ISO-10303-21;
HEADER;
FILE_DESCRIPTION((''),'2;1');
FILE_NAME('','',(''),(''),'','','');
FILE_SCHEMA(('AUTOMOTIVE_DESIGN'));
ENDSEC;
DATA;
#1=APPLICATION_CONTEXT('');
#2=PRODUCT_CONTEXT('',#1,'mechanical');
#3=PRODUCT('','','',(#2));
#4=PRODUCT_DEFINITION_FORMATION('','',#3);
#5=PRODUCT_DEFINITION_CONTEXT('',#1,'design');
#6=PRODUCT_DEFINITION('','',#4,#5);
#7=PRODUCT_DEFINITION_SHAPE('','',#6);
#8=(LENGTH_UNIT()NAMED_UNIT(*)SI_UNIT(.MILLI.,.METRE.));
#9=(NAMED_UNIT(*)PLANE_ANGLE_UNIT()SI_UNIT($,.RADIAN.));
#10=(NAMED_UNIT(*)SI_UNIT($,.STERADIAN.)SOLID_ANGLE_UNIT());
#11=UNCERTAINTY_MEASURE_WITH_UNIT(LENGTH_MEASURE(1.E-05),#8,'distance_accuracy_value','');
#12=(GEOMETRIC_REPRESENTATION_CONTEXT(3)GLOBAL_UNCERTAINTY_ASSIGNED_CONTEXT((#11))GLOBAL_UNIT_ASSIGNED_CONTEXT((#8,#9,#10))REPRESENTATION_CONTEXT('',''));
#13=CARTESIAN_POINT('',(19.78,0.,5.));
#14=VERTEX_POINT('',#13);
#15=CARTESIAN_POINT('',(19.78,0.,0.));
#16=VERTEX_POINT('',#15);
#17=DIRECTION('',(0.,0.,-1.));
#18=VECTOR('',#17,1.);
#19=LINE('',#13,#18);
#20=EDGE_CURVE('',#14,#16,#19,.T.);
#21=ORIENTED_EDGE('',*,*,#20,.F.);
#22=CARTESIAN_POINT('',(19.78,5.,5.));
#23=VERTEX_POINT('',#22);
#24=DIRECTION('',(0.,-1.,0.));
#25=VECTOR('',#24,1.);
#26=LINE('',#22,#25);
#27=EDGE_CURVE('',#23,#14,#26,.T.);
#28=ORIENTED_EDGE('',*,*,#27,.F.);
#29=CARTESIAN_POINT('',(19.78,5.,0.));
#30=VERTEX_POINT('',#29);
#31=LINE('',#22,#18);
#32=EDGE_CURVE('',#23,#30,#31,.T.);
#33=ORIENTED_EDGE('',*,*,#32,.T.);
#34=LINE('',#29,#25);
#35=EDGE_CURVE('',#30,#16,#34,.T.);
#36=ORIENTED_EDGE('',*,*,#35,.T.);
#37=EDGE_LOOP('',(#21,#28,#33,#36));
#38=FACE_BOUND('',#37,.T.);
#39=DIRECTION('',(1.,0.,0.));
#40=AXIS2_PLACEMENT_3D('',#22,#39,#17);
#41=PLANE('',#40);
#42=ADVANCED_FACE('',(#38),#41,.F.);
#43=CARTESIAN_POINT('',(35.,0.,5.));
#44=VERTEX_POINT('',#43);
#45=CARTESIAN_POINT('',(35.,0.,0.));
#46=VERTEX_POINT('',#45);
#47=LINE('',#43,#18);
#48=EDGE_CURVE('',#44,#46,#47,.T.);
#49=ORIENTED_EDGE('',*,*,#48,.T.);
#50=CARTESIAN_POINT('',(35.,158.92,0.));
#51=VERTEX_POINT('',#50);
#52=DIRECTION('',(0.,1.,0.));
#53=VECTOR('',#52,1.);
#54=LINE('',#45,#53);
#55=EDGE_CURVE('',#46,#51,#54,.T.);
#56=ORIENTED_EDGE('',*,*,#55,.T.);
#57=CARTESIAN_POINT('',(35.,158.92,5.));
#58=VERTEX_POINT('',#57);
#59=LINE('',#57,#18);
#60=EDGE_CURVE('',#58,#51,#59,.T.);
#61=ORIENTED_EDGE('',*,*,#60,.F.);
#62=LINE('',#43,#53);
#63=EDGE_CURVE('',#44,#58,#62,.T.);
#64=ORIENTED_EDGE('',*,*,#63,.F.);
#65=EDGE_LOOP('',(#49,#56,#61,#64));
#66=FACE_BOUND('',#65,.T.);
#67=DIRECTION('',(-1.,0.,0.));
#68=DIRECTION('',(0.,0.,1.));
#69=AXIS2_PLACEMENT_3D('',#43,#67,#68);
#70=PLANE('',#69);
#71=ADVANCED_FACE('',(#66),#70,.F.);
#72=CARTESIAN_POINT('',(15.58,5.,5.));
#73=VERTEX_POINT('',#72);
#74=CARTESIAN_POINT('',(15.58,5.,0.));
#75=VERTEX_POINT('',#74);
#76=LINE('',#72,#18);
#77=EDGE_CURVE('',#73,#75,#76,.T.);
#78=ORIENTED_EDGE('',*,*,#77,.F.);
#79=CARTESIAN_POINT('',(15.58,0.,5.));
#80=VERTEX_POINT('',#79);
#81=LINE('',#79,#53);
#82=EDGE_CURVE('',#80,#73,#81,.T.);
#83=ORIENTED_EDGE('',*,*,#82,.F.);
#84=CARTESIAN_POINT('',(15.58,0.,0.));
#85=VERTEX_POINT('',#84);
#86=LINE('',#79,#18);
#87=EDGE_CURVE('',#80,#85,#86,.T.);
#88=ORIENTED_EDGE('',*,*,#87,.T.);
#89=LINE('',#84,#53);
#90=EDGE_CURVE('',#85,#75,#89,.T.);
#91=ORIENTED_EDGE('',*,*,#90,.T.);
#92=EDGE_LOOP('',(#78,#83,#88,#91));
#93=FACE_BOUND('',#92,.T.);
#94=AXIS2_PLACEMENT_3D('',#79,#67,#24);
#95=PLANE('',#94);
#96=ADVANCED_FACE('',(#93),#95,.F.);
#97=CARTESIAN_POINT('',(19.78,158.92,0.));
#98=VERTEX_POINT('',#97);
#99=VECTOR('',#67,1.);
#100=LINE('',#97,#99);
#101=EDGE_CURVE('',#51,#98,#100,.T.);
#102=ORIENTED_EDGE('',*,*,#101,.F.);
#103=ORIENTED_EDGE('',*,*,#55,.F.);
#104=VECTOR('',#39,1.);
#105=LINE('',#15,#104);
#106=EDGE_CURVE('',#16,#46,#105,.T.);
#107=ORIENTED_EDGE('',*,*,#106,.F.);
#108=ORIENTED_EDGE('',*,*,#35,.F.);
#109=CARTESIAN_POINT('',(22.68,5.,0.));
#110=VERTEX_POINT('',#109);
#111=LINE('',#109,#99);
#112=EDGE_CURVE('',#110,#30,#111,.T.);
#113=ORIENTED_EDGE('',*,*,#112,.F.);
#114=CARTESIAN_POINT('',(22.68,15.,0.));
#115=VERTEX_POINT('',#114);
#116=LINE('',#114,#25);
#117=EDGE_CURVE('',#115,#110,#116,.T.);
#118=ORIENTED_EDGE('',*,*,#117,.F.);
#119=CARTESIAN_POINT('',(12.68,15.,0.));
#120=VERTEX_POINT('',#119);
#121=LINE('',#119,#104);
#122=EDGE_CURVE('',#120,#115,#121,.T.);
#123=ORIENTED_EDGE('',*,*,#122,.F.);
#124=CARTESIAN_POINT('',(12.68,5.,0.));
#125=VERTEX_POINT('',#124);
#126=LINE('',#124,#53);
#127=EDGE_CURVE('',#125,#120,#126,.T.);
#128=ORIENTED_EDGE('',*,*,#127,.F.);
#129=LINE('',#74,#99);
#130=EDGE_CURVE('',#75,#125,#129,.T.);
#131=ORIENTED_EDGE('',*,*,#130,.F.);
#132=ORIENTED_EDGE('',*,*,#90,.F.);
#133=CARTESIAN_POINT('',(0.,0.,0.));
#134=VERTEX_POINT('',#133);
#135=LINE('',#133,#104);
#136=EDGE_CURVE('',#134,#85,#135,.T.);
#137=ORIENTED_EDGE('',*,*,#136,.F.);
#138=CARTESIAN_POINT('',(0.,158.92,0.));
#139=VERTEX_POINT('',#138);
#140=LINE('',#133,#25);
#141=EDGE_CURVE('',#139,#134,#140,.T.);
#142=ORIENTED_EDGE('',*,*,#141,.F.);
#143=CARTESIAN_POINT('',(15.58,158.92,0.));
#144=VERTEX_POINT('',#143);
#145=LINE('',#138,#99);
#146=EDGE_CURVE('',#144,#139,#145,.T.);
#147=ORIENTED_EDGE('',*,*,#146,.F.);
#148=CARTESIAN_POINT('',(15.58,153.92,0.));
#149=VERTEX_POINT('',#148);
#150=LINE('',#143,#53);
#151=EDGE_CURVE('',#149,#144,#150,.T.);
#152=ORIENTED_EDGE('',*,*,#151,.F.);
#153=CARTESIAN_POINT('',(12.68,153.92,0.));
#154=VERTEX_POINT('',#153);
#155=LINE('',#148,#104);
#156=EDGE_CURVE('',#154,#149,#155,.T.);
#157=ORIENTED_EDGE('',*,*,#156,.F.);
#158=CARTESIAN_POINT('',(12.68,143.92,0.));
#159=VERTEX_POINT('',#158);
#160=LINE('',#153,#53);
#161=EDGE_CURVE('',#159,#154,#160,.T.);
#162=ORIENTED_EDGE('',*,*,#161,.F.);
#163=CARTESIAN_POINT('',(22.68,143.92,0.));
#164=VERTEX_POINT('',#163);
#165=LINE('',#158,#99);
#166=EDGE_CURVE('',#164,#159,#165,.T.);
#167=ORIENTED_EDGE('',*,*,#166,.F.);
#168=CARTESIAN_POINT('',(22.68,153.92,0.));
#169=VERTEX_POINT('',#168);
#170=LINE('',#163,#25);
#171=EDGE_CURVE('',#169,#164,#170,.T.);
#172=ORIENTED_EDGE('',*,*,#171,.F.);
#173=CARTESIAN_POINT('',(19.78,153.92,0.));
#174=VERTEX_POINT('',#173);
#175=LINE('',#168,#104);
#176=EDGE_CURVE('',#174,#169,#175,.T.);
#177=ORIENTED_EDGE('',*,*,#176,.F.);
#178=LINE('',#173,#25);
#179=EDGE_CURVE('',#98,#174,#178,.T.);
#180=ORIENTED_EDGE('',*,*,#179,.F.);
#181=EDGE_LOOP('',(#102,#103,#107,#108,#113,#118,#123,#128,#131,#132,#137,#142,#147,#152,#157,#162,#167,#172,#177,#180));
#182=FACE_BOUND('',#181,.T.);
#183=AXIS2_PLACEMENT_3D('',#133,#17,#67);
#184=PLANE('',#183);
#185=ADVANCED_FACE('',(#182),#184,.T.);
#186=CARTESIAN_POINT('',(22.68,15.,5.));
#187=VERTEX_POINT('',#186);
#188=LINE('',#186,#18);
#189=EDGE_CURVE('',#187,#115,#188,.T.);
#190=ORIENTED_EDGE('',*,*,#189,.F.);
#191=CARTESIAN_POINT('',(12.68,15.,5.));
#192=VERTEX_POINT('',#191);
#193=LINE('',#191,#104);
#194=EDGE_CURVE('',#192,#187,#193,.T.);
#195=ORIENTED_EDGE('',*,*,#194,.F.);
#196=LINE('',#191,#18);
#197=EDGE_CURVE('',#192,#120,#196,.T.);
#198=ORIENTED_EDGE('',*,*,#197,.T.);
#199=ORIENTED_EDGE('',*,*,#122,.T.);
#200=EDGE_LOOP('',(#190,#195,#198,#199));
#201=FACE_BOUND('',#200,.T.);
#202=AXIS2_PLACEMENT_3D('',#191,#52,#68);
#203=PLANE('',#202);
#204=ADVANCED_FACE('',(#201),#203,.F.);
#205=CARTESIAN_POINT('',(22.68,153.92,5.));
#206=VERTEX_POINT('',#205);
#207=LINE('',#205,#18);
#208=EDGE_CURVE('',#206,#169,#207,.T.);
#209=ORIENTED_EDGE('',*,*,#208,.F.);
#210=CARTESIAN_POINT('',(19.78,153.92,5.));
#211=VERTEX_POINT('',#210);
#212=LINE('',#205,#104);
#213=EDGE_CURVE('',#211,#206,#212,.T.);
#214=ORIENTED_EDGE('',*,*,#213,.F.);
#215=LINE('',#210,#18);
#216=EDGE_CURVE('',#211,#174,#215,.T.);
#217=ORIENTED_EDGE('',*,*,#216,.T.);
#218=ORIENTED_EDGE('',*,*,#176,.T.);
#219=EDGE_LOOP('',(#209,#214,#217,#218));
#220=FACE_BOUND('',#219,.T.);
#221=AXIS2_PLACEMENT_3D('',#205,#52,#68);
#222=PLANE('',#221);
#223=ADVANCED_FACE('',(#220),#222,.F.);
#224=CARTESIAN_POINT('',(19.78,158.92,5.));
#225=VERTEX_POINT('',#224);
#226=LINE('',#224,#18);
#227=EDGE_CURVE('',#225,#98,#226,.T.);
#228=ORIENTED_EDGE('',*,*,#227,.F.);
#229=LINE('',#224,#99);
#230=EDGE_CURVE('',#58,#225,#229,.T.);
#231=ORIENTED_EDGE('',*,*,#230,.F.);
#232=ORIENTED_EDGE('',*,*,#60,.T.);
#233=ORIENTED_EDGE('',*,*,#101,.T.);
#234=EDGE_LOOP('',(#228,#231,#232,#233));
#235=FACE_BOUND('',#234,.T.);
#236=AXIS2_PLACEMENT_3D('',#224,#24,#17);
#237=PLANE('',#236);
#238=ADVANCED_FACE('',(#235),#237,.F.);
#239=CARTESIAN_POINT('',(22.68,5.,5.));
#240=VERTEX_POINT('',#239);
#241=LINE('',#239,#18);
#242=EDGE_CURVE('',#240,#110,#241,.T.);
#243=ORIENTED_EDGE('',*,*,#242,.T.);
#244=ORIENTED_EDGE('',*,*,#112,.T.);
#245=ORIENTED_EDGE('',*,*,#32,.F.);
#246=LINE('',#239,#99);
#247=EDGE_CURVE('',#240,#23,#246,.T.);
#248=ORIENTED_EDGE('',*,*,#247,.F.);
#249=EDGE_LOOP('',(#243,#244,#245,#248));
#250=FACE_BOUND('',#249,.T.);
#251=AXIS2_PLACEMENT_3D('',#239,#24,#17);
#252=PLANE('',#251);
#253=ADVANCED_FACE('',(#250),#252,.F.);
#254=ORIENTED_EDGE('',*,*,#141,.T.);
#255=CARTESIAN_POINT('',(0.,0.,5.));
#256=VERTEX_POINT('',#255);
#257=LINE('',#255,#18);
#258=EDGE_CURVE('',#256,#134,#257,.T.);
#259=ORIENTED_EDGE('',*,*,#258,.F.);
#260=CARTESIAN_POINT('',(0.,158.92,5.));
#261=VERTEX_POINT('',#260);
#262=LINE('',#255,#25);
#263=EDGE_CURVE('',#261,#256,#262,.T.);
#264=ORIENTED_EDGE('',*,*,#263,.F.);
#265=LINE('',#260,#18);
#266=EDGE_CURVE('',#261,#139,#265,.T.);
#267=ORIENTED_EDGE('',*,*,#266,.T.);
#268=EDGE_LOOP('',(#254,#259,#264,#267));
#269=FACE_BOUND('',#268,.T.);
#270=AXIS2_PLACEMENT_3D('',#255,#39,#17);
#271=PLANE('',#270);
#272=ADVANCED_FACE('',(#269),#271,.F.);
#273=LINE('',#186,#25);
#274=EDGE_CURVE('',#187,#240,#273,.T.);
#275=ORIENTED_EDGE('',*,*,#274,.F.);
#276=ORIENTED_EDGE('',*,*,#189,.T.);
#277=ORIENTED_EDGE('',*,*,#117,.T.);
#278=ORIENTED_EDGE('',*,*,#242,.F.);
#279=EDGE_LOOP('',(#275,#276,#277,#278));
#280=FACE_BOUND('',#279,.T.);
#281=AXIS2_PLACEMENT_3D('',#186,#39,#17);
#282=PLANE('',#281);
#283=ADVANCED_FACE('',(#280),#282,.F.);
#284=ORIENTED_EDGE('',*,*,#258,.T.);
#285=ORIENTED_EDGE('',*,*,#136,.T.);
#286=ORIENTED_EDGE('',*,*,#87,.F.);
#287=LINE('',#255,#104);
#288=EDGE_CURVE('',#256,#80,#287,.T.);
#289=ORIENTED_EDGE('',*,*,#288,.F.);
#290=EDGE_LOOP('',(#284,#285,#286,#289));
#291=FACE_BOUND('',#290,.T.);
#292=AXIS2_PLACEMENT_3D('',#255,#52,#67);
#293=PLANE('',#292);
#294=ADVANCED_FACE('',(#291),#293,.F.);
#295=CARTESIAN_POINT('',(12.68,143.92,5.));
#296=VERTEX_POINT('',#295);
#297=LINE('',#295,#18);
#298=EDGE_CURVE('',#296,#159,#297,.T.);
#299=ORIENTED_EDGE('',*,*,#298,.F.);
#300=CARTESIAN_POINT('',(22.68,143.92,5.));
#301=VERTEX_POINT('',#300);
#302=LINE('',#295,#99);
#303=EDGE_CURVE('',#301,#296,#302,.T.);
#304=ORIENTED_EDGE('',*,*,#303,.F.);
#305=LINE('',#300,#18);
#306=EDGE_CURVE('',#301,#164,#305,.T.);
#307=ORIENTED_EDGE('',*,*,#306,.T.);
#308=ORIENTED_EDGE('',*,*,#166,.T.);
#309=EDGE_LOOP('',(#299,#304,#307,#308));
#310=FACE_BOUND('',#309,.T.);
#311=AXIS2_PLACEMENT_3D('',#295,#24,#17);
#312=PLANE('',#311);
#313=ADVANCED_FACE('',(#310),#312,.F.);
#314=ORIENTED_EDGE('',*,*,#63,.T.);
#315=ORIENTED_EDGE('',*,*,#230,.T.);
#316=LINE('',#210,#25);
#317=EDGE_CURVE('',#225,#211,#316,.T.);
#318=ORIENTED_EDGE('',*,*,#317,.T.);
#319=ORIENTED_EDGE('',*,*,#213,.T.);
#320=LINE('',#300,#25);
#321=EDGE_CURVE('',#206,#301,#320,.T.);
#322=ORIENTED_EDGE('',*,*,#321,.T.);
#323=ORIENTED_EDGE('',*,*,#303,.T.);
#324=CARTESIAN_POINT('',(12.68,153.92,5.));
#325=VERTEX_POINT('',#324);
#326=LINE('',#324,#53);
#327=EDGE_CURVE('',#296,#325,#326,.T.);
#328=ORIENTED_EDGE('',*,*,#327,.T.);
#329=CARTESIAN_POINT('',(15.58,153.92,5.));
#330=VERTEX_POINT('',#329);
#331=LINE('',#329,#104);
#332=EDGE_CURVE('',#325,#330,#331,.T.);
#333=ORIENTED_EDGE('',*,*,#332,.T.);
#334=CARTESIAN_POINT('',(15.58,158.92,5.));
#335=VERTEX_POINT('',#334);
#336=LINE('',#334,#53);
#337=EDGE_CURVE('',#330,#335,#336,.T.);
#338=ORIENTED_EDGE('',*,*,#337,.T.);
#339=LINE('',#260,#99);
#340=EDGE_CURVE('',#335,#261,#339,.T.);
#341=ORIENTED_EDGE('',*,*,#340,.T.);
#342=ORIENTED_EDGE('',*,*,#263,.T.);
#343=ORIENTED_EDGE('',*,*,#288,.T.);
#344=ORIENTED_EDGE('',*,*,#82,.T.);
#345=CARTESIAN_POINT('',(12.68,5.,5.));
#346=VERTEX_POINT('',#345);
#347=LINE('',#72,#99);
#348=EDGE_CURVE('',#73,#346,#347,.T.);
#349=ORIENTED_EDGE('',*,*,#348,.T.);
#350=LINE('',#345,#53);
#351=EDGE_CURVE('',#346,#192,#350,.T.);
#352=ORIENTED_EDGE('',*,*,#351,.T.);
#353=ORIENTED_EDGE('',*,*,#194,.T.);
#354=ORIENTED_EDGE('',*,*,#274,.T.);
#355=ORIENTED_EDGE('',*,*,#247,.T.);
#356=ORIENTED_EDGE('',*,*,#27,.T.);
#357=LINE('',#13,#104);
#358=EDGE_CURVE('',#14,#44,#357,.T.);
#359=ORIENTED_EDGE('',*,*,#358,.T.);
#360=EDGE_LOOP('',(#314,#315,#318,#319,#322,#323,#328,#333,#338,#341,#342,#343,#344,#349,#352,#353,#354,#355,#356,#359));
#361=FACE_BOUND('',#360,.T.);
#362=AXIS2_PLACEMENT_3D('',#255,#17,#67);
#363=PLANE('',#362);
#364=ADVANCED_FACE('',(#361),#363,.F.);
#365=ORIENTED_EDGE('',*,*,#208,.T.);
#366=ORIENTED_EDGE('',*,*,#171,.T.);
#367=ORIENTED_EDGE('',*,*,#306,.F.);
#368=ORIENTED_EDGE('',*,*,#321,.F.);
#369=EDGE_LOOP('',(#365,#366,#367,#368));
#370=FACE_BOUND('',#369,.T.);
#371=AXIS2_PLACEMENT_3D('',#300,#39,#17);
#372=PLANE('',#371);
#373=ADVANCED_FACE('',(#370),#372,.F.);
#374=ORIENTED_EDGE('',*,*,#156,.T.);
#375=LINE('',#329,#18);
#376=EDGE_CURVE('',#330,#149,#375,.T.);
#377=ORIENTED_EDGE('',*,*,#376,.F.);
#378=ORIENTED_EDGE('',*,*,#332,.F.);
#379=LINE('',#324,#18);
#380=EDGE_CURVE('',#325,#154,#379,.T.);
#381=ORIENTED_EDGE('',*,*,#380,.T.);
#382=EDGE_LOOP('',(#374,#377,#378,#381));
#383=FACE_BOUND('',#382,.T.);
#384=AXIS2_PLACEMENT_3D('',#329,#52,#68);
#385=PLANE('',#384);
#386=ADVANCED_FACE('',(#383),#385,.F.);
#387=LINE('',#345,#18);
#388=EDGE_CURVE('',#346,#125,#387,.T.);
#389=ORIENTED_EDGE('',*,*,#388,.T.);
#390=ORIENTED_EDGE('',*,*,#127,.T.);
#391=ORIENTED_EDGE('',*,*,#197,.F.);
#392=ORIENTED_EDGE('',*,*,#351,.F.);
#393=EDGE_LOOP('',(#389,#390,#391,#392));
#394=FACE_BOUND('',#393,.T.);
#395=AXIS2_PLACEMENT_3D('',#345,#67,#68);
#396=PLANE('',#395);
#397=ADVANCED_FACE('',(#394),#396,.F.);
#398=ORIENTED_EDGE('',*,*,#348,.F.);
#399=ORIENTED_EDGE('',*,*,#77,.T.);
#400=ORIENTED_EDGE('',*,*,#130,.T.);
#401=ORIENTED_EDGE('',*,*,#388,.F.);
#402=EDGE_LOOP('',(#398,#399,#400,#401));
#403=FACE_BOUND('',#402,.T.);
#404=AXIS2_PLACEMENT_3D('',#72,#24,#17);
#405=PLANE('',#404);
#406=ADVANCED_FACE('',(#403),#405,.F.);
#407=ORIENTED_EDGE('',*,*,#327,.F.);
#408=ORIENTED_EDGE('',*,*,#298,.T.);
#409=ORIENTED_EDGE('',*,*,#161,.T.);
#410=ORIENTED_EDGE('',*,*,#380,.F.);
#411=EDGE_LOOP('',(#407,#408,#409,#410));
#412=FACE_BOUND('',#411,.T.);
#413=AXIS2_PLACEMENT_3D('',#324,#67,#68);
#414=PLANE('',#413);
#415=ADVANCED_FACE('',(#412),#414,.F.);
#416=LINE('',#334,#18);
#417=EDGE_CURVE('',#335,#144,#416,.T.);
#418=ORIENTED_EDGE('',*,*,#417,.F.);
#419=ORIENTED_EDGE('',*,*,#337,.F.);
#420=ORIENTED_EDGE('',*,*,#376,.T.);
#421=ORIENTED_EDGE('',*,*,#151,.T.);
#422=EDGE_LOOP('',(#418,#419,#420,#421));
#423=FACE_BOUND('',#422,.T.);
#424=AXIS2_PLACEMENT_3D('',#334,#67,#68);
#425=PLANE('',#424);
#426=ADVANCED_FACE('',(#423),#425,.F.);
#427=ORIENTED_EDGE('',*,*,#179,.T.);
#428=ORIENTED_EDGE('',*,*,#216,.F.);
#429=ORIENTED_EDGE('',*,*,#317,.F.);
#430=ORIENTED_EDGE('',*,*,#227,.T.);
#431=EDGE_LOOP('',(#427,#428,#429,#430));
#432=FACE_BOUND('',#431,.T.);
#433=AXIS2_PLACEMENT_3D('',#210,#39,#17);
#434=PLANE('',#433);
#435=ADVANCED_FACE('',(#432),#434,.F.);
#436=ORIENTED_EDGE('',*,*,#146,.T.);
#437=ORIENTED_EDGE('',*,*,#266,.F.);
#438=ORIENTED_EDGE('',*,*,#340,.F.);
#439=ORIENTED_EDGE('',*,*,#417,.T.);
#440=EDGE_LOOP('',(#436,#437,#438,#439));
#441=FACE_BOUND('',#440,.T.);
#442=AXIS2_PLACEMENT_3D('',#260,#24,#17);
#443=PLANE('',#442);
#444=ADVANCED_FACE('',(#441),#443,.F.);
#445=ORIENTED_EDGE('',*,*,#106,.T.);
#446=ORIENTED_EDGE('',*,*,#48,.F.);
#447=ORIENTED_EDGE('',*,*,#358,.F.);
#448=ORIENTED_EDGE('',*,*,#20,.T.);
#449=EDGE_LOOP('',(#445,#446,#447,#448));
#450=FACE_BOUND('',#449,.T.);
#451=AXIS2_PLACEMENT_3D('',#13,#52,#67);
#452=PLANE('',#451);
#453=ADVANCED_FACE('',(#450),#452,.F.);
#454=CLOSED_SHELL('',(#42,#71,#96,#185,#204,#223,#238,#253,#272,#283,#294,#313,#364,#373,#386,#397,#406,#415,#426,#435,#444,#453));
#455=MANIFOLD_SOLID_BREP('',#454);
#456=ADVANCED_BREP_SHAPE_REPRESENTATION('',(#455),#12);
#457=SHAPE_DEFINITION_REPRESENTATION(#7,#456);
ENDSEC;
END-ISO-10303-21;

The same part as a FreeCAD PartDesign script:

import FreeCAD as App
import Part
import Sketcher
from FreeCAD import Vector
Q = App.Units.Quantity


def add_polygon(sketch, points):
    """Adds a closed chain of lines whose ends are joined by coincident constraints."""
    first, n = sketch.GeometryCount, len(points)
    for a, b in zip(points, points[1:] + points[:1]):
        sketch.addGeometry(Part.LineSegment(App.Vector(*a, 0), App.Vector(*b, 0)), False)
    for i in range(n):
        sketch.addConstraint(Sketcher.Constraint("Coincident", first + i, 2, first + (i + 1) % n, 1))

doc = App.newDocument("Part")
params = doc.addObject("Spreadsheet::Sheet", "Params")
for row, (alias, value) in enumerate([
    ("sketch1_width", "10 mm"),
    ("sketch1_height", "5 mm"),
    ("sketch1_width2", "2.9 mm"),
    ("sketch1_width3", "15.58 mm"),
    ("sketch1_height2", "158.92 mm"),
    ("pad1_length", "5 mm"),
], start=1):
    params.set(f"A{row}", alias)
    params.set(f"B{row}", "=" + value)
    params.setAlias(f"B{row}", alias)

body = doc.addObject("PartDesign::Body", "Body")

# Sketch on XY plane
sketch1 = body.newObject("Sketcher::SketchObject", "Sketch")
sketch1.AttachmentSupport = (doc.getObject("XY_Plane"), [""])
sketch1.MapMode = "FlatFace"
add_polygon(sketch1, [(0, 0), (15.6, 0), (15.6, 5), (12.7, 5), (12.7, 15), (22.7, 15), (22.7, 5), (19.8, 5), (19.8, 0), (35, 0), (35, 158.9), (19.8, 158.9), (19.8, 153.9), (22.7, 153.9), (22.7, 143.9), (12.7, 143.9), (12.7, 153.9), (15.6, 153.9), (15.6, 158.9), (0, 158.9)])  # lines 0-19
sketch1.addConstraint([
    Sketcher.Constraint("Horizontal", 0),
    Sketcher.Constraint("Vertical", 1),
    Sketcher.Constraint("Horizontal", 2),
    Sketcher.Constraint("Vertical", 3),
    Sketcher.Constraint("Horizontal", 4),
    Sketcher.Constraint("Vertical", 5),
    Sketcher.Constraint("Horizontal", 6),
    Sketcher.Constraint("Vertical", 7),
    Sketcher.Constraint("Horizontal", 8),
    Sketcher.Constraint("Vertical", 9),
    Sketcher.Constraint("Horizontal", 10),
    Sketcher.Constraint("Vertical", 11),
    Sketcher.Constraint("Horizontal", 12),
    Sketcher.Constraint("Vertical", 13),
    Sketcher.Constraint("Horizontal", 14),
    Sketcher.Constraint("Vertical", 15),
    Sketcher.Constraint("Horizontal", 16),
    Sketcher.Constraint("Vertical", 17),
    Sketcher.Constraint("Horizontal", 18),
    Sketcher.Constraint("Vertical", 19),
    Sketcher.Constraint("Coincident", 19, 2, -1, 1),
    Sketcher.Constraint("PointOnObject", 7, 2, -1),
    Sketcher.Constraint("Horizontal", 2, 2, 5, 2),
    Sketcher.Constraint("Horizontal", 12, 2, 15, 2),
    Sketcher.Constraint("Horizontal", 10, 2, 17, 2),
    Sketcher.Constraint("Vertical", 7, 2, 10, 2),
    Sketcher.Constraint("Vertical", 5, 2, 12, 2),
    Sketcher.Constraint("Vertical", 3, 2, 14, 2),
    Sketcher.Constraint("Vertical", 1, 2, 16, 2),
    Sketcher.Constraint("Equal", 2, 6),
    Sketcher.Constraint("Equal", 14, 3),
    Sketcher.Constraint("Equal", 7, 11),
    Sketcher.Constraint("Equal", 5, 13),
    Sketcher.Constraint("DistanceX", 4, 1, 4, 2, Q("10 mm")),
    Sketcher.Constraint("DistanceY", 1, 1, 1, 2, Q("5 mm")),
    Sketcher.Constraint("DistanceX", 2, 2, 2, 1, Q("2.9 mm")),
    Sketcher.Constraint("DistanceX", -1, 1, 8, 2, Q("35 mm")),
    Sketcher.Constraint("DistanceX", 0, 1, 0, 2, Q("15.58 mm")),
    Sketcher.Constraint("DistanceY", 9, 1, 9, 2, Q("158.92 mm")),
])
sketch1.setExpression("Constraints[53]", "Params.sketch1_width")
sketch1.setExpression("Constraints[54]", "Params.sketch1_height")
sketch1.setExpression("Constraints[55]", "Params.sketch1_width2")
sketch1.setExpression("Constraints[57]", "Params.sketch1_width3")
sketch1.setExpression("Constraints[58]", "Params.sketch1_height2")
pad1 = body.newObject("PartDesign::Pad", "Pad")
pad1.Profile = sketch1
pad1.setExpression("Length", "Params.pad1_length")

doc.recompute()
